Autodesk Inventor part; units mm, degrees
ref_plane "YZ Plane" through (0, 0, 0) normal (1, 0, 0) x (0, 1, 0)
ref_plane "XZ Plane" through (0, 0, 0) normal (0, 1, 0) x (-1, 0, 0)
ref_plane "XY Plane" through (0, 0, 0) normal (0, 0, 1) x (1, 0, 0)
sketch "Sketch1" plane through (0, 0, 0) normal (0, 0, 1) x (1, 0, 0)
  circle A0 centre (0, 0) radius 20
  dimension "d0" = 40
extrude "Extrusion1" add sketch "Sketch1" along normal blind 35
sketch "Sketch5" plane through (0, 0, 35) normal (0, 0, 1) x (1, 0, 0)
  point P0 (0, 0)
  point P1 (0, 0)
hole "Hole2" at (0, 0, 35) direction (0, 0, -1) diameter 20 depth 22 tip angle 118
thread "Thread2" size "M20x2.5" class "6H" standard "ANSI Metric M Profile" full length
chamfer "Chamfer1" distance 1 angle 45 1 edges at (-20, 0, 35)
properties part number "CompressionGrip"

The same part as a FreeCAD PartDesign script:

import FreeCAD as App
import Part
import Sketcher


def edges_at(feature, points):
    """Names of the edges that pass closest to the given points."""
    edges = feature.Shape.Edges
    near = lambda p: min(range(len(edges)), key=lambda i: edges[i].distToShape(Part.Vertex(*p))[0])
    return sorted({f"Edge{near(p) + 1}" for p in points})

doc = App.newDocument("Part")
body = doc.addObject("PartDesign::Body", "Body")

sketch1 = body.newObject("Sketcher::SketchObject", "Sketch")
sketch1.AttachmentSupport = (doc.getObject("XY_Plane"), [""])
sketch1.MapMode = "FlatFace"
sketch1.addGeometry(Part.Circle(App.Vector(0, 0, 0), App.Vector(0, 0, 1), 20), False)
sketch1.addConstraint([
    Sketcher.Constraint("Coincident", 0, 3, -1, 1),
    Sketcher.Constraint("Diameter", 0, 40.0),
])
pad1 = body.newObject("PartDesign::Pad", "Pad")
pad1.Profile = sketch1
pad1.Length = 35

sketch2 = body.newObject("Sketcher::SketchObject", "Sketch001")
sketch2.AttachmentSupport = (doc.getObject("XY_Plane"), [""])
sketch2.MapMode = "FlatFace"
sketch2.AttachmentOffset = App.Placement(App.Vector(0, 0, 35), App.Rotation())
sketch2.addGeometry(Part.Circle(App.Vector(0, 0, 0), App.Vector(0, 0, 1), 10), False)
sketch2.addConstraint([
    Sketcher.Constraint("Coincident", 0, 3, -1, 1),
    Sketcher.Constraint("Diameter", 0, 20.0),
])
doc.recompute()
hole = body.newObject("PartDesign::Hole", "Hole")
hole.Profile = sketch2
hole.ThreadType = "None"
hole.Diameter = 20
hole.DepthType = "Dimension"
hole.Depth = 22
hole.DrillPoint = "Angled"
hole.DrillPointAngle = 118
doc.recompute()

chamfer = body.newObject("PartDesign::Chamfer", "Chamfer")
chamfer.Base = (hole, edges_at(hole, [(-20, 0, 35)]))
chamfer.Size = 1

doc.recompute()
